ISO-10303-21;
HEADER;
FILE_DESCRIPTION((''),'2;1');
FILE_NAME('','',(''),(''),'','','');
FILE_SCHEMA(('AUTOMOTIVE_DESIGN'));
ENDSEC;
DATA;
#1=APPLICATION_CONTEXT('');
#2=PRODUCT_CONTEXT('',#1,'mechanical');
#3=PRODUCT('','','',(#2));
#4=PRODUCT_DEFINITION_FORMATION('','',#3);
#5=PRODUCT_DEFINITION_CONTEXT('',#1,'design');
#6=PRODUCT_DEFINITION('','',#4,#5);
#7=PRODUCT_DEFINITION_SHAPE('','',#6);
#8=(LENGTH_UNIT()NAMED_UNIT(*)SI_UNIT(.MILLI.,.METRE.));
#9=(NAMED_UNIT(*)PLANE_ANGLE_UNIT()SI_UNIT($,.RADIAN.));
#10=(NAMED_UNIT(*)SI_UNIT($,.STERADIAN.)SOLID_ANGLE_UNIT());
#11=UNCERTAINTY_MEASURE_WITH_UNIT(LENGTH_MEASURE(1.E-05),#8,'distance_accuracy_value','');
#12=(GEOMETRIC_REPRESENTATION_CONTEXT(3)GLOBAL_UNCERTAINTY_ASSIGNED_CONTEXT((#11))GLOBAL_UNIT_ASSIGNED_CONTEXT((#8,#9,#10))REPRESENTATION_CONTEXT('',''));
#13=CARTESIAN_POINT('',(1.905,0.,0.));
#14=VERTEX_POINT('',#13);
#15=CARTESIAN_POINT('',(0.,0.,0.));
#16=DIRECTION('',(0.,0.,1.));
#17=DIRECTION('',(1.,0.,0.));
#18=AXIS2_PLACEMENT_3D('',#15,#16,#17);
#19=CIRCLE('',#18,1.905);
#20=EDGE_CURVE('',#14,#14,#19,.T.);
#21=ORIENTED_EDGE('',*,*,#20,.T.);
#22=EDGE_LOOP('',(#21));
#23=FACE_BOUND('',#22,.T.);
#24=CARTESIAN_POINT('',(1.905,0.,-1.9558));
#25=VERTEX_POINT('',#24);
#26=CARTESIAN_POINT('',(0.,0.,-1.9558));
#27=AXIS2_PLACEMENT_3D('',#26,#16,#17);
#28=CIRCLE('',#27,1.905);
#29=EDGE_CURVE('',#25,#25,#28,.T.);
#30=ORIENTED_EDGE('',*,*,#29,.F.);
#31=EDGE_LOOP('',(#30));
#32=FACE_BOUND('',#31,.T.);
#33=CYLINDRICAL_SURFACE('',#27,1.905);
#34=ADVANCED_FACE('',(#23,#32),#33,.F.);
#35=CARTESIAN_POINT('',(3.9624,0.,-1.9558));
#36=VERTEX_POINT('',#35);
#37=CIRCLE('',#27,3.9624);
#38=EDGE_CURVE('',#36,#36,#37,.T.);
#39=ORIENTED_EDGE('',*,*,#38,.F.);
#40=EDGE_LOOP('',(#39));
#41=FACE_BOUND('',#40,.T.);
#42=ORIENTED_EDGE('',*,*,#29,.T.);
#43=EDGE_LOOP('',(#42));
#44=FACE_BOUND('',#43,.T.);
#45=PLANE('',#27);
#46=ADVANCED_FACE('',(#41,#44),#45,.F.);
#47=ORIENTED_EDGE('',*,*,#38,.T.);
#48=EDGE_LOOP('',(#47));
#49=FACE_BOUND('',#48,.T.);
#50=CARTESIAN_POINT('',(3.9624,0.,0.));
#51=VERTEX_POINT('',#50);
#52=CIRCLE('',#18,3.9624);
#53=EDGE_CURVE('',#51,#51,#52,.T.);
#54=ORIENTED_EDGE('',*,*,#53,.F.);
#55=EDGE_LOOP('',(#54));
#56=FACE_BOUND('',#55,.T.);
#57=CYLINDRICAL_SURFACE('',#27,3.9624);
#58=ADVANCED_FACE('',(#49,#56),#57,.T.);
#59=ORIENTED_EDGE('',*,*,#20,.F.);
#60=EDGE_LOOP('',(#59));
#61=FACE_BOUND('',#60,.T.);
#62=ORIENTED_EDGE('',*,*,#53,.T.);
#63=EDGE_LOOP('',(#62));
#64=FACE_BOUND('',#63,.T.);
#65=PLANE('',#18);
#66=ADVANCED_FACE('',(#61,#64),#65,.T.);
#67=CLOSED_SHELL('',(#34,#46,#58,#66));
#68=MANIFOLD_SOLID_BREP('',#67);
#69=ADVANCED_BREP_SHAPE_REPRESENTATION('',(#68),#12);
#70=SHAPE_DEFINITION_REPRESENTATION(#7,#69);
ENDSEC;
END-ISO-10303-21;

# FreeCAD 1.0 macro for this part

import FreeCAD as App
import Part
import Sketcher
from FreeCAD import Vector
Q = App.Units.Quantity

doc = App.newDocument("Part")
body = doc.addObject("PartDesign::Body", "Body")

# Sketch on XY plane
sketch1 = body.newObject("Sketcher::SketchObject", "Sketch")
sketch1.AttachmentSupport = (doc.getObject("XY_Plane"), [""])
sketch1.MapMode = "FlatFace"
sketch1.addGeometry([
    Part.Circle(Vector(0, 0, 0), Vector(0, 0, 1), 4),
    Part.Circle(Vector(0, 0, 0), Vector(0, 0, 1), 1.9),
], False)
sketch1.addConstraint([
    Sketcher.Constraint("Coincident", 0, 3, -1, 1),
    Sketcher.Constraint("Coincident", 1, 3, -1, 1),
    Sketcher.Constraint("Diameter", 1, Q("0.15 in")),
    Sketcher.Constraint("Diameter", 0, Q("0.312 in")),
])
pad1 = body.newObject("PartDesign::Pad", "Pad")
pad1.Profile = sketch1
pad1.Length = Q("0.077 in")
pad1.Reversed = True

doc.recompute()
